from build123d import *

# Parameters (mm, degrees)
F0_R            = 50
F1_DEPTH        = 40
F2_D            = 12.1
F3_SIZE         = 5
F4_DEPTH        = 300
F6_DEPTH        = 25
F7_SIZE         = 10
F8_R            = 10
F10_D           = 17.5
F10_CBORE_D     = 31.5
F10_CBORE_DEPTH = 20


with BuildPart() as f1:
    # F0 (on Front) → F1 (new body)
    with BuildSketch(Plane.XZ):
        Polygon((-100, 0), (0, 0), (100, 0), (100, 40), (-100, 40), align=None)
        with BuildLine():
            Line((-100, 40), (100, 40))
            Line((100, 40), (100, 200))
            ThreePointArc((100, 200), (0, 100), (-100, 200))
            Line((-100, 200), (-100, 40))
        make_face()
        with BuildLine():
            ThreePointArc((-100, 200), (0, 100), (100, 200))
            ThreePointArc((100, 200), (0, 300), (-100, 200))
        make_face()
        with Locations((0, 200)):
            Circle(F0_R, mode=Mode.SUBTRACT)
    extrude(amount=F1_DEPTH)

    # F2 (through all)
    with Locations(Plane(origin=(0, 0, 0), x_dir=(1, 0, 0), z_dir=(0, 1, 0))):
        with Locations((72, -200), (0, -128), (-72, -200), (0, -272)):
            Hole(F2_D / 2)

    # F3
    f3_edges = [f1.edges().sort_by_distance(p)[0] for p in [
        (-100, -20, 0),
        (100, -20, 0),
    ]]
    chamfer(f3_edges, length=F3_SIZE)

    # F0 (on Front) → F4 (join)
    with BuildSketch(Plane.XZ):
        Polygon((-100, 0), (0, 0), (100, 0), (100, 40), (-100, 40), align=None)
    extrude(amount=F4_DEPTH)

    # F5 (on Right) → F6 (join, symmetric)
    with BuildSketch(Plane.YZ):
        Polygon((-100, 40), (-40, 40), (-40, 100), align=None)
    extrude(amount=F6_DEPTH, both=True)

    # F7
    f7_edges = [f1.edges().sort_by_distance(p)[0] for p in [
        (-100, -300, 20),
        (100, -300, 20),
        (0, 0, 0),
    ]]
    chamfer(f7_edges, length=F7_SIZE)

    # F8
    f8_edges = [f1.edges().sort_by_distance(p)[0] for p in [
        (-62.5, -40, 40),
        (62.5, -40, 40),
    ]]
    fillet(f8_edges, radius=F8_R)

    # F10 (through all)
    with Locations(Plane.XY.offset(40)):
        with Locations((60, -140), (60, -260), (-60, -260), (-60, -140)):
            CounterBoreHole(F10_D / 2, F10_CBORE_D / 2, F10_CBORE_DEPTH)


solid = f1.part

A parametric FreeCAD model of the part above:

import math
import FreeCAD as App
import Part
import Sketcher
Q = App.Units.Quantity


def edges_at(feature, points):
    """Names of the edges that pass closest to the given points."""
    edges = feature.Shape.Edges
    near = lambda p: min(range(len(edges)), key=lambda i: edges[i].distToShape(Part.Vertex(*p))[0])
    return sorted({f"Edge{near(p) + 1}" for p in points})


def add_polygon(sketch, points):
    """Adds a closed chain of lines whose ends are joined by coincident constraints."""
    first, n = sketch.GeometryCount, len(points)
    for a, b in zip(points, points[1:] + points[:1]):
        sketch.addGeometry(Part.LineSegment(App.Vector(*a, 0), App.Vector(*b, 0)), False)
    for i in range(n):
        sketch.addConstraint(Sketcher.Constraint("Coincident", first + i, 2, first + (i + 1) % n, 1))

doc = App.newDocument("Part")
params = doc.addObject("Spreadsheet::Sheet", "Params")
for row, (alias, value) in enumerate([
    ("sketch1_diameter", "100 mm"),
    ("sketch1_radius", "100 mm"),
    ("pad1_length", "40 mm"),
    ("sketch2_diameter", "12.1 mm"),
    ("hole_diameter", "12.1 mm"),
    ("chamfer_size", "5 mm"),
    ("sketch3_width", "200 mm"),
    ("sketch3_height", "40 mm"),
    ("pad2_length", "300 mm"),
    ("sketch4_width", "60 mm"),
    ("pad3_length", "50 mm"),
    ("chamfer2_size", "10 mm"),
    ("fillet_radius", "10 mm"),
    ("sketch5_diameter", "17.5 mm"),
    ("hole2_diameter", "17.5 mm"),
    ("hole2_cbore_diameter", "31.5 mm"),
    ("hole2_cbore_depth", "20 mm"),
], start=1):
    params.set(f"A{row}", alias)
    params.set(f"B{row}", "=" + value)
    params.setAlias(f"B{row}", alias)

body = doc.addObject("PartDesign::Body", "Body")

# Sketch on XZ plane
sketch1 = doc.addObject("Sketcher::SketchObject", "Sketch")
body.addObject(sketch1)
sketch1.AttachmentSupport = (doc.XZ_Plane, [""])
sketch1.MapMode = "FlatFace"
sketch1.addGeometry([
    Part.LineSegment(App.Vector(-100, 0, 0), App.Vector(100, 0, 0)),  # 0
    Part.LineSegment(App.Vector(100, 0, 0), App.Vector(100, 200, 0)),  # 1
    Part.ArcOfCircle(Part.Circle(App.Vector(0, 200, 0), App.Vector(0, 0, 1), 100), math.radians(0), math.radians(180)),  # 2
    Part.LineSegment(App.Vector(-100, 200, 0), App.Vector(-100, 0, 0)),  # 3
    Part.Circle(App.Vector(0, 200, 0), App.Vector(0, 0, 1), 50),  # 4
], False)
sketch1.addConstraint([
    Sketcher.Constraint("Coincident", 0, 2, 1, 1),
    Sketcher.Constraint("Tangent", 1, 2, 2, 1),
    Sketcher.Constraint("Tangent", 2, 2, 3, 1),
    Sketcher.Constraint("Coincident", 3, 2, 0, 1),
    Sketcher.Constraint("Horizontal", 0),
    Sketcher.Constraint("Vertical", 1),
    Sketcher.Constraint("Vertical", 3),
    Sketcher.Constraint("Coincident", 4, 3, 2, 3),
    Sketcher.Constraint("Symmetric", 0, 2, 3, 2, -1, 1),
    Sketcher.Constraint("Equal", 0, 1),
    Sketcher.Constraint("Diameter", 4, Q("100 mm")),
    Sketcher.Constraint("Radius", 2, Q("100 mm")),
])
sketch1.setExpression("Constraints[10]", "Params.sketch1_diameter")
sketch1.setExpression("Constraints[11]", "Params.sketch1_radius")
pad1 = doc.addObject("PartDesign::Pad", "Pad")
body.addObject(pad1)
pad1.Profile = sketch1
pad1.setExpression("Length", "Params.pad1_length")

# Sketch on XZ plane
sketch2 = doc.addObject("Sketcher::SketchObject", "Sketch001")
body.addObject(sketch2)
sketch2.AttachmentSupport = (doc.XZ_Plane, [""])
sketch2.MapMode = "FlatFace"
sketch2.addGeometry([
    Part.Circle(App.Vector(72, 200, 0), App.Vector(0, 0, 1), 6),
    Part.Circle(App.Vector(0, 128, 0), App.Vector(0, 0, 1), 6),
    Part.Circle(App.Vector(-72, 200, 0), App.Vector(0, 0, 1), 6),
    Part.Circle(App.Vector(0, 272, 0), App.Vector(0, 0, 1), 6),
], False)
sketch2.addConstraint([
    Sketcher.Constraint("Equal", 0, 1),
    Sketcher.Constraint("Equal", 1, 2),
    Sketcher.Constraint("Equal", 2, 3),
    Sketcher.Constraint("Symmetric", 0, 3, 2, 3, -2),
    Sketcher.Constraint("PointOnObject", 1, 3, -2),
    Sketcher.Constraint("PointOnObject", 3, 3, -2),
    Sketcher.Constraint("Diameter", 0, Q("12.1 mm")),
    Sketcher.Constraint("DistanceX", -1, 1, 0, 3, Q("72 mm")),
    Sketcher.Constraint("DistanceY", -1, 1, 0, 3, Q("200 mm")),
    Sketcher.Constraint("DistanceY", -1, 1, 1, 3, Q("128 mm")),
    Sketcher.Constraint("DistanceY", -1, 1, 3, 3, Q("272 mm")),
])
sketch2.setExpression("Constraints[6]", "Params.sketch2_diameter")
doc.recompute()
hole = doc.addObject("PartDesign::Hole", "Hole")
body.addObject(hole)
hole.Profile = sketch2
hole.ThreadType = "None"
hole.setExpression("Diameter", "Params.hole_diameter")
hole.DepthType = "ThroughAll"
hole.Reversed = True
doc.recompute()

chamfer = doc.addObject("PartDesign::Chamfer", "Chamfer")
body.addObject(chamfer)
chamfer.Base = (hole, edges_at(hole, [(-100, -20, 0), (100, -20, 0)]))
chamfer.setExpression("Size", "Params.chamfer_size")

# Sketch on XZ plane
sketch3 = doc.addObject("Sketcher::SketchObject", "Sketch002")
body.addObject(sketch3)
sketch3.AttachmentSupport = (doc.XZ_Plane, [""])
sketch3.MapMode = "FlatFace"
add_polygon(sketch3, [(-100, 0), (100, 0), (100, 40), (-100, 40)])  # lines 0-3
sketch3.addConstraint([
    Sketcher.Constraint("Horizontal", 0),
    Sketcher.Constraint("Vertical", 1),
    Sketcher.Constraint("Horizontal", 2),
    Sketcher.Constraint("Vertical", 3),
    Sketcher.Constraint("Symmetric", 0, 2, 3, 2, -1, 1),
    Sketcher.Constraint("DistanceX", 0, 1, 0, 2, Q("200 mm")),
    Sketcher.Constraint("DistanceY", 1, 1, 1, 2, Q("40 mm")),
])
sketch3.setExpression("Constraints[9]", "Params.sketch3_width")
sketch3.setExpression("Constraints[10]", "Params.sketch3_height")
pad2 = doc.addObject("PartDesign::Pad", "Pad001")
body.addObject(pad2)
pad2.Profile = sketch3
pad2.setExpression("Length", "Params.pad2_length")

# Sketch on YZ plane
sketch4 = doc.addObject("Sketcher::SketchObject", "Sketch003")
body.addObject(sketch4)
sketch4.AttachmentSupport = (doc.YZ_Plane, [""])
sketch4.MapMode = "FlatFace"
add_polygon(sketch4, [(-100, 40), (-40, 40), (-40, 100)])  # lines 0-2
sketch4.addConstraint([
    Sketcher.Constraint("Horizontal", 0),
    Sketcher.Constraint("Vertical", 1),
    Sketcher.Constraint("Equal", 0, 1),
    Sketcher.Constraint("DistanceX", 0, 1, 0, 2, Q("60 mm")),
    Sketcher.Constraint("DistanceX", 0, 2, -1, 1, Q("40 mm")),
    Sketcher.Constraint("DistanceY", -1, 1, 0, 2, Q("40 mm")),
])
sketch4.setExpression("Constraints[6]", "Params.sketch4_width")
pad3 = doc.addObject("PartDesign::Pad", "Pad002")
body.addObject(pad3)
pad3.Profile = sketch4
pad3.setExpression("Length", "Params.pad3_length")
pad3.Midplane = True
doc.recompute()

chamfer2 = doc.addObject("PartDesign::Chamfer", "Chamfer001")
body.addObject(chamfer2)
chamfer2.Base = (pad3, edges_at(pad3, [(-100, -300, 20), (100, -300, 20), (0, 0, 0)]))
chamfer2.setExpression("Size", "Params.chamfer2_size")
doc.recompute()

fillet = doc.addObject("PartDesign::Fillet", "Fillet")
body.addObject(fillet)
fillet.Base = (chamfer2, edges_at(chamfer2, [(-62.5, -40, 40), (62.5, -40, 40)]))
fillet.setExpression("Radius", "Params.fillet_radius")

# Sketch on XY plane
sketch5 = doc.addObject("Sketcher::SketchObject", "Sketch004")
body.addObject(sketch5)
sketch5.AttachmentSupport = (doc.XY_Plane, [""])
sketch5.MapMode = "FlatFace"
sketch5.AttachmentOffset = App.Placement(App.Vector(0, 0, 40), App.Rotation())
sketch5.addGeometry([
    Part.Circle(App.Vector(60, -140, 0), App.Vector(0, 0, 1), 9),
    Part.Circle(App.Vector(60, -260, 0), App.Vector(0, 0, 1), 9),
    Part.Circle(App.Vector(-60, -260, 0), App.Vector(0, 0, 1), 9),
    Part.Circle(App.Vector(-60, -140, 0), App.Vector(0, 0, 1), 9),
], False)
sketch5.addConstraint([
    Sketcher.Constraint("Equal", 0, 1),
    Sketcher.Constraint("Equal", 1, 2),
    Sketcher.Constraint("Equal", 2, 3),
    Sketcher.Constraint("Symmetric", 1, 3, 2, 3, -2),
    Sketcher.Constraint("Symmetric", 0, 3, 3, 3, -2),
    Sketcher.Constraint("Vertical", 0, 3, 1, 3),
    Sketcher.Constraint("Diameter", 0, Q("17.5 mm")),
    Sketcher.Constraint("DistanceX", -1, 1, 0, 3, Q("60 mm")),
    Sketcher.Constraint("DistanceY", 0, 3, -1, 1, Q("140 mm")),
    Sketcher.Constraint("DistanceY", 1, 3, -1, 1, Q("260 mm")),
])
sketch5.setExpression("Constraints[6]", "Params.sketch5_diameter")
doc.recompute()
hole2 = doc.addObject("PartDesign::Hole", "Hole001")
body.addObject(hole2)
hole2.Profile = sketch5
hole2.ThreadType = "None"
hole2.setExpression("Diameter", "Params.hole2_diameter")
hole2.DepthType = "ThroughAll"
hole2.HoleCutType = "Counterbore"
hole2.setExpression("HoleCutDiameter", "Params.hole2_cbore_diameter")
hole2.setExpression("HoleCutDepth", "Params.hole2_cbore_depth")

doc.recompute()
